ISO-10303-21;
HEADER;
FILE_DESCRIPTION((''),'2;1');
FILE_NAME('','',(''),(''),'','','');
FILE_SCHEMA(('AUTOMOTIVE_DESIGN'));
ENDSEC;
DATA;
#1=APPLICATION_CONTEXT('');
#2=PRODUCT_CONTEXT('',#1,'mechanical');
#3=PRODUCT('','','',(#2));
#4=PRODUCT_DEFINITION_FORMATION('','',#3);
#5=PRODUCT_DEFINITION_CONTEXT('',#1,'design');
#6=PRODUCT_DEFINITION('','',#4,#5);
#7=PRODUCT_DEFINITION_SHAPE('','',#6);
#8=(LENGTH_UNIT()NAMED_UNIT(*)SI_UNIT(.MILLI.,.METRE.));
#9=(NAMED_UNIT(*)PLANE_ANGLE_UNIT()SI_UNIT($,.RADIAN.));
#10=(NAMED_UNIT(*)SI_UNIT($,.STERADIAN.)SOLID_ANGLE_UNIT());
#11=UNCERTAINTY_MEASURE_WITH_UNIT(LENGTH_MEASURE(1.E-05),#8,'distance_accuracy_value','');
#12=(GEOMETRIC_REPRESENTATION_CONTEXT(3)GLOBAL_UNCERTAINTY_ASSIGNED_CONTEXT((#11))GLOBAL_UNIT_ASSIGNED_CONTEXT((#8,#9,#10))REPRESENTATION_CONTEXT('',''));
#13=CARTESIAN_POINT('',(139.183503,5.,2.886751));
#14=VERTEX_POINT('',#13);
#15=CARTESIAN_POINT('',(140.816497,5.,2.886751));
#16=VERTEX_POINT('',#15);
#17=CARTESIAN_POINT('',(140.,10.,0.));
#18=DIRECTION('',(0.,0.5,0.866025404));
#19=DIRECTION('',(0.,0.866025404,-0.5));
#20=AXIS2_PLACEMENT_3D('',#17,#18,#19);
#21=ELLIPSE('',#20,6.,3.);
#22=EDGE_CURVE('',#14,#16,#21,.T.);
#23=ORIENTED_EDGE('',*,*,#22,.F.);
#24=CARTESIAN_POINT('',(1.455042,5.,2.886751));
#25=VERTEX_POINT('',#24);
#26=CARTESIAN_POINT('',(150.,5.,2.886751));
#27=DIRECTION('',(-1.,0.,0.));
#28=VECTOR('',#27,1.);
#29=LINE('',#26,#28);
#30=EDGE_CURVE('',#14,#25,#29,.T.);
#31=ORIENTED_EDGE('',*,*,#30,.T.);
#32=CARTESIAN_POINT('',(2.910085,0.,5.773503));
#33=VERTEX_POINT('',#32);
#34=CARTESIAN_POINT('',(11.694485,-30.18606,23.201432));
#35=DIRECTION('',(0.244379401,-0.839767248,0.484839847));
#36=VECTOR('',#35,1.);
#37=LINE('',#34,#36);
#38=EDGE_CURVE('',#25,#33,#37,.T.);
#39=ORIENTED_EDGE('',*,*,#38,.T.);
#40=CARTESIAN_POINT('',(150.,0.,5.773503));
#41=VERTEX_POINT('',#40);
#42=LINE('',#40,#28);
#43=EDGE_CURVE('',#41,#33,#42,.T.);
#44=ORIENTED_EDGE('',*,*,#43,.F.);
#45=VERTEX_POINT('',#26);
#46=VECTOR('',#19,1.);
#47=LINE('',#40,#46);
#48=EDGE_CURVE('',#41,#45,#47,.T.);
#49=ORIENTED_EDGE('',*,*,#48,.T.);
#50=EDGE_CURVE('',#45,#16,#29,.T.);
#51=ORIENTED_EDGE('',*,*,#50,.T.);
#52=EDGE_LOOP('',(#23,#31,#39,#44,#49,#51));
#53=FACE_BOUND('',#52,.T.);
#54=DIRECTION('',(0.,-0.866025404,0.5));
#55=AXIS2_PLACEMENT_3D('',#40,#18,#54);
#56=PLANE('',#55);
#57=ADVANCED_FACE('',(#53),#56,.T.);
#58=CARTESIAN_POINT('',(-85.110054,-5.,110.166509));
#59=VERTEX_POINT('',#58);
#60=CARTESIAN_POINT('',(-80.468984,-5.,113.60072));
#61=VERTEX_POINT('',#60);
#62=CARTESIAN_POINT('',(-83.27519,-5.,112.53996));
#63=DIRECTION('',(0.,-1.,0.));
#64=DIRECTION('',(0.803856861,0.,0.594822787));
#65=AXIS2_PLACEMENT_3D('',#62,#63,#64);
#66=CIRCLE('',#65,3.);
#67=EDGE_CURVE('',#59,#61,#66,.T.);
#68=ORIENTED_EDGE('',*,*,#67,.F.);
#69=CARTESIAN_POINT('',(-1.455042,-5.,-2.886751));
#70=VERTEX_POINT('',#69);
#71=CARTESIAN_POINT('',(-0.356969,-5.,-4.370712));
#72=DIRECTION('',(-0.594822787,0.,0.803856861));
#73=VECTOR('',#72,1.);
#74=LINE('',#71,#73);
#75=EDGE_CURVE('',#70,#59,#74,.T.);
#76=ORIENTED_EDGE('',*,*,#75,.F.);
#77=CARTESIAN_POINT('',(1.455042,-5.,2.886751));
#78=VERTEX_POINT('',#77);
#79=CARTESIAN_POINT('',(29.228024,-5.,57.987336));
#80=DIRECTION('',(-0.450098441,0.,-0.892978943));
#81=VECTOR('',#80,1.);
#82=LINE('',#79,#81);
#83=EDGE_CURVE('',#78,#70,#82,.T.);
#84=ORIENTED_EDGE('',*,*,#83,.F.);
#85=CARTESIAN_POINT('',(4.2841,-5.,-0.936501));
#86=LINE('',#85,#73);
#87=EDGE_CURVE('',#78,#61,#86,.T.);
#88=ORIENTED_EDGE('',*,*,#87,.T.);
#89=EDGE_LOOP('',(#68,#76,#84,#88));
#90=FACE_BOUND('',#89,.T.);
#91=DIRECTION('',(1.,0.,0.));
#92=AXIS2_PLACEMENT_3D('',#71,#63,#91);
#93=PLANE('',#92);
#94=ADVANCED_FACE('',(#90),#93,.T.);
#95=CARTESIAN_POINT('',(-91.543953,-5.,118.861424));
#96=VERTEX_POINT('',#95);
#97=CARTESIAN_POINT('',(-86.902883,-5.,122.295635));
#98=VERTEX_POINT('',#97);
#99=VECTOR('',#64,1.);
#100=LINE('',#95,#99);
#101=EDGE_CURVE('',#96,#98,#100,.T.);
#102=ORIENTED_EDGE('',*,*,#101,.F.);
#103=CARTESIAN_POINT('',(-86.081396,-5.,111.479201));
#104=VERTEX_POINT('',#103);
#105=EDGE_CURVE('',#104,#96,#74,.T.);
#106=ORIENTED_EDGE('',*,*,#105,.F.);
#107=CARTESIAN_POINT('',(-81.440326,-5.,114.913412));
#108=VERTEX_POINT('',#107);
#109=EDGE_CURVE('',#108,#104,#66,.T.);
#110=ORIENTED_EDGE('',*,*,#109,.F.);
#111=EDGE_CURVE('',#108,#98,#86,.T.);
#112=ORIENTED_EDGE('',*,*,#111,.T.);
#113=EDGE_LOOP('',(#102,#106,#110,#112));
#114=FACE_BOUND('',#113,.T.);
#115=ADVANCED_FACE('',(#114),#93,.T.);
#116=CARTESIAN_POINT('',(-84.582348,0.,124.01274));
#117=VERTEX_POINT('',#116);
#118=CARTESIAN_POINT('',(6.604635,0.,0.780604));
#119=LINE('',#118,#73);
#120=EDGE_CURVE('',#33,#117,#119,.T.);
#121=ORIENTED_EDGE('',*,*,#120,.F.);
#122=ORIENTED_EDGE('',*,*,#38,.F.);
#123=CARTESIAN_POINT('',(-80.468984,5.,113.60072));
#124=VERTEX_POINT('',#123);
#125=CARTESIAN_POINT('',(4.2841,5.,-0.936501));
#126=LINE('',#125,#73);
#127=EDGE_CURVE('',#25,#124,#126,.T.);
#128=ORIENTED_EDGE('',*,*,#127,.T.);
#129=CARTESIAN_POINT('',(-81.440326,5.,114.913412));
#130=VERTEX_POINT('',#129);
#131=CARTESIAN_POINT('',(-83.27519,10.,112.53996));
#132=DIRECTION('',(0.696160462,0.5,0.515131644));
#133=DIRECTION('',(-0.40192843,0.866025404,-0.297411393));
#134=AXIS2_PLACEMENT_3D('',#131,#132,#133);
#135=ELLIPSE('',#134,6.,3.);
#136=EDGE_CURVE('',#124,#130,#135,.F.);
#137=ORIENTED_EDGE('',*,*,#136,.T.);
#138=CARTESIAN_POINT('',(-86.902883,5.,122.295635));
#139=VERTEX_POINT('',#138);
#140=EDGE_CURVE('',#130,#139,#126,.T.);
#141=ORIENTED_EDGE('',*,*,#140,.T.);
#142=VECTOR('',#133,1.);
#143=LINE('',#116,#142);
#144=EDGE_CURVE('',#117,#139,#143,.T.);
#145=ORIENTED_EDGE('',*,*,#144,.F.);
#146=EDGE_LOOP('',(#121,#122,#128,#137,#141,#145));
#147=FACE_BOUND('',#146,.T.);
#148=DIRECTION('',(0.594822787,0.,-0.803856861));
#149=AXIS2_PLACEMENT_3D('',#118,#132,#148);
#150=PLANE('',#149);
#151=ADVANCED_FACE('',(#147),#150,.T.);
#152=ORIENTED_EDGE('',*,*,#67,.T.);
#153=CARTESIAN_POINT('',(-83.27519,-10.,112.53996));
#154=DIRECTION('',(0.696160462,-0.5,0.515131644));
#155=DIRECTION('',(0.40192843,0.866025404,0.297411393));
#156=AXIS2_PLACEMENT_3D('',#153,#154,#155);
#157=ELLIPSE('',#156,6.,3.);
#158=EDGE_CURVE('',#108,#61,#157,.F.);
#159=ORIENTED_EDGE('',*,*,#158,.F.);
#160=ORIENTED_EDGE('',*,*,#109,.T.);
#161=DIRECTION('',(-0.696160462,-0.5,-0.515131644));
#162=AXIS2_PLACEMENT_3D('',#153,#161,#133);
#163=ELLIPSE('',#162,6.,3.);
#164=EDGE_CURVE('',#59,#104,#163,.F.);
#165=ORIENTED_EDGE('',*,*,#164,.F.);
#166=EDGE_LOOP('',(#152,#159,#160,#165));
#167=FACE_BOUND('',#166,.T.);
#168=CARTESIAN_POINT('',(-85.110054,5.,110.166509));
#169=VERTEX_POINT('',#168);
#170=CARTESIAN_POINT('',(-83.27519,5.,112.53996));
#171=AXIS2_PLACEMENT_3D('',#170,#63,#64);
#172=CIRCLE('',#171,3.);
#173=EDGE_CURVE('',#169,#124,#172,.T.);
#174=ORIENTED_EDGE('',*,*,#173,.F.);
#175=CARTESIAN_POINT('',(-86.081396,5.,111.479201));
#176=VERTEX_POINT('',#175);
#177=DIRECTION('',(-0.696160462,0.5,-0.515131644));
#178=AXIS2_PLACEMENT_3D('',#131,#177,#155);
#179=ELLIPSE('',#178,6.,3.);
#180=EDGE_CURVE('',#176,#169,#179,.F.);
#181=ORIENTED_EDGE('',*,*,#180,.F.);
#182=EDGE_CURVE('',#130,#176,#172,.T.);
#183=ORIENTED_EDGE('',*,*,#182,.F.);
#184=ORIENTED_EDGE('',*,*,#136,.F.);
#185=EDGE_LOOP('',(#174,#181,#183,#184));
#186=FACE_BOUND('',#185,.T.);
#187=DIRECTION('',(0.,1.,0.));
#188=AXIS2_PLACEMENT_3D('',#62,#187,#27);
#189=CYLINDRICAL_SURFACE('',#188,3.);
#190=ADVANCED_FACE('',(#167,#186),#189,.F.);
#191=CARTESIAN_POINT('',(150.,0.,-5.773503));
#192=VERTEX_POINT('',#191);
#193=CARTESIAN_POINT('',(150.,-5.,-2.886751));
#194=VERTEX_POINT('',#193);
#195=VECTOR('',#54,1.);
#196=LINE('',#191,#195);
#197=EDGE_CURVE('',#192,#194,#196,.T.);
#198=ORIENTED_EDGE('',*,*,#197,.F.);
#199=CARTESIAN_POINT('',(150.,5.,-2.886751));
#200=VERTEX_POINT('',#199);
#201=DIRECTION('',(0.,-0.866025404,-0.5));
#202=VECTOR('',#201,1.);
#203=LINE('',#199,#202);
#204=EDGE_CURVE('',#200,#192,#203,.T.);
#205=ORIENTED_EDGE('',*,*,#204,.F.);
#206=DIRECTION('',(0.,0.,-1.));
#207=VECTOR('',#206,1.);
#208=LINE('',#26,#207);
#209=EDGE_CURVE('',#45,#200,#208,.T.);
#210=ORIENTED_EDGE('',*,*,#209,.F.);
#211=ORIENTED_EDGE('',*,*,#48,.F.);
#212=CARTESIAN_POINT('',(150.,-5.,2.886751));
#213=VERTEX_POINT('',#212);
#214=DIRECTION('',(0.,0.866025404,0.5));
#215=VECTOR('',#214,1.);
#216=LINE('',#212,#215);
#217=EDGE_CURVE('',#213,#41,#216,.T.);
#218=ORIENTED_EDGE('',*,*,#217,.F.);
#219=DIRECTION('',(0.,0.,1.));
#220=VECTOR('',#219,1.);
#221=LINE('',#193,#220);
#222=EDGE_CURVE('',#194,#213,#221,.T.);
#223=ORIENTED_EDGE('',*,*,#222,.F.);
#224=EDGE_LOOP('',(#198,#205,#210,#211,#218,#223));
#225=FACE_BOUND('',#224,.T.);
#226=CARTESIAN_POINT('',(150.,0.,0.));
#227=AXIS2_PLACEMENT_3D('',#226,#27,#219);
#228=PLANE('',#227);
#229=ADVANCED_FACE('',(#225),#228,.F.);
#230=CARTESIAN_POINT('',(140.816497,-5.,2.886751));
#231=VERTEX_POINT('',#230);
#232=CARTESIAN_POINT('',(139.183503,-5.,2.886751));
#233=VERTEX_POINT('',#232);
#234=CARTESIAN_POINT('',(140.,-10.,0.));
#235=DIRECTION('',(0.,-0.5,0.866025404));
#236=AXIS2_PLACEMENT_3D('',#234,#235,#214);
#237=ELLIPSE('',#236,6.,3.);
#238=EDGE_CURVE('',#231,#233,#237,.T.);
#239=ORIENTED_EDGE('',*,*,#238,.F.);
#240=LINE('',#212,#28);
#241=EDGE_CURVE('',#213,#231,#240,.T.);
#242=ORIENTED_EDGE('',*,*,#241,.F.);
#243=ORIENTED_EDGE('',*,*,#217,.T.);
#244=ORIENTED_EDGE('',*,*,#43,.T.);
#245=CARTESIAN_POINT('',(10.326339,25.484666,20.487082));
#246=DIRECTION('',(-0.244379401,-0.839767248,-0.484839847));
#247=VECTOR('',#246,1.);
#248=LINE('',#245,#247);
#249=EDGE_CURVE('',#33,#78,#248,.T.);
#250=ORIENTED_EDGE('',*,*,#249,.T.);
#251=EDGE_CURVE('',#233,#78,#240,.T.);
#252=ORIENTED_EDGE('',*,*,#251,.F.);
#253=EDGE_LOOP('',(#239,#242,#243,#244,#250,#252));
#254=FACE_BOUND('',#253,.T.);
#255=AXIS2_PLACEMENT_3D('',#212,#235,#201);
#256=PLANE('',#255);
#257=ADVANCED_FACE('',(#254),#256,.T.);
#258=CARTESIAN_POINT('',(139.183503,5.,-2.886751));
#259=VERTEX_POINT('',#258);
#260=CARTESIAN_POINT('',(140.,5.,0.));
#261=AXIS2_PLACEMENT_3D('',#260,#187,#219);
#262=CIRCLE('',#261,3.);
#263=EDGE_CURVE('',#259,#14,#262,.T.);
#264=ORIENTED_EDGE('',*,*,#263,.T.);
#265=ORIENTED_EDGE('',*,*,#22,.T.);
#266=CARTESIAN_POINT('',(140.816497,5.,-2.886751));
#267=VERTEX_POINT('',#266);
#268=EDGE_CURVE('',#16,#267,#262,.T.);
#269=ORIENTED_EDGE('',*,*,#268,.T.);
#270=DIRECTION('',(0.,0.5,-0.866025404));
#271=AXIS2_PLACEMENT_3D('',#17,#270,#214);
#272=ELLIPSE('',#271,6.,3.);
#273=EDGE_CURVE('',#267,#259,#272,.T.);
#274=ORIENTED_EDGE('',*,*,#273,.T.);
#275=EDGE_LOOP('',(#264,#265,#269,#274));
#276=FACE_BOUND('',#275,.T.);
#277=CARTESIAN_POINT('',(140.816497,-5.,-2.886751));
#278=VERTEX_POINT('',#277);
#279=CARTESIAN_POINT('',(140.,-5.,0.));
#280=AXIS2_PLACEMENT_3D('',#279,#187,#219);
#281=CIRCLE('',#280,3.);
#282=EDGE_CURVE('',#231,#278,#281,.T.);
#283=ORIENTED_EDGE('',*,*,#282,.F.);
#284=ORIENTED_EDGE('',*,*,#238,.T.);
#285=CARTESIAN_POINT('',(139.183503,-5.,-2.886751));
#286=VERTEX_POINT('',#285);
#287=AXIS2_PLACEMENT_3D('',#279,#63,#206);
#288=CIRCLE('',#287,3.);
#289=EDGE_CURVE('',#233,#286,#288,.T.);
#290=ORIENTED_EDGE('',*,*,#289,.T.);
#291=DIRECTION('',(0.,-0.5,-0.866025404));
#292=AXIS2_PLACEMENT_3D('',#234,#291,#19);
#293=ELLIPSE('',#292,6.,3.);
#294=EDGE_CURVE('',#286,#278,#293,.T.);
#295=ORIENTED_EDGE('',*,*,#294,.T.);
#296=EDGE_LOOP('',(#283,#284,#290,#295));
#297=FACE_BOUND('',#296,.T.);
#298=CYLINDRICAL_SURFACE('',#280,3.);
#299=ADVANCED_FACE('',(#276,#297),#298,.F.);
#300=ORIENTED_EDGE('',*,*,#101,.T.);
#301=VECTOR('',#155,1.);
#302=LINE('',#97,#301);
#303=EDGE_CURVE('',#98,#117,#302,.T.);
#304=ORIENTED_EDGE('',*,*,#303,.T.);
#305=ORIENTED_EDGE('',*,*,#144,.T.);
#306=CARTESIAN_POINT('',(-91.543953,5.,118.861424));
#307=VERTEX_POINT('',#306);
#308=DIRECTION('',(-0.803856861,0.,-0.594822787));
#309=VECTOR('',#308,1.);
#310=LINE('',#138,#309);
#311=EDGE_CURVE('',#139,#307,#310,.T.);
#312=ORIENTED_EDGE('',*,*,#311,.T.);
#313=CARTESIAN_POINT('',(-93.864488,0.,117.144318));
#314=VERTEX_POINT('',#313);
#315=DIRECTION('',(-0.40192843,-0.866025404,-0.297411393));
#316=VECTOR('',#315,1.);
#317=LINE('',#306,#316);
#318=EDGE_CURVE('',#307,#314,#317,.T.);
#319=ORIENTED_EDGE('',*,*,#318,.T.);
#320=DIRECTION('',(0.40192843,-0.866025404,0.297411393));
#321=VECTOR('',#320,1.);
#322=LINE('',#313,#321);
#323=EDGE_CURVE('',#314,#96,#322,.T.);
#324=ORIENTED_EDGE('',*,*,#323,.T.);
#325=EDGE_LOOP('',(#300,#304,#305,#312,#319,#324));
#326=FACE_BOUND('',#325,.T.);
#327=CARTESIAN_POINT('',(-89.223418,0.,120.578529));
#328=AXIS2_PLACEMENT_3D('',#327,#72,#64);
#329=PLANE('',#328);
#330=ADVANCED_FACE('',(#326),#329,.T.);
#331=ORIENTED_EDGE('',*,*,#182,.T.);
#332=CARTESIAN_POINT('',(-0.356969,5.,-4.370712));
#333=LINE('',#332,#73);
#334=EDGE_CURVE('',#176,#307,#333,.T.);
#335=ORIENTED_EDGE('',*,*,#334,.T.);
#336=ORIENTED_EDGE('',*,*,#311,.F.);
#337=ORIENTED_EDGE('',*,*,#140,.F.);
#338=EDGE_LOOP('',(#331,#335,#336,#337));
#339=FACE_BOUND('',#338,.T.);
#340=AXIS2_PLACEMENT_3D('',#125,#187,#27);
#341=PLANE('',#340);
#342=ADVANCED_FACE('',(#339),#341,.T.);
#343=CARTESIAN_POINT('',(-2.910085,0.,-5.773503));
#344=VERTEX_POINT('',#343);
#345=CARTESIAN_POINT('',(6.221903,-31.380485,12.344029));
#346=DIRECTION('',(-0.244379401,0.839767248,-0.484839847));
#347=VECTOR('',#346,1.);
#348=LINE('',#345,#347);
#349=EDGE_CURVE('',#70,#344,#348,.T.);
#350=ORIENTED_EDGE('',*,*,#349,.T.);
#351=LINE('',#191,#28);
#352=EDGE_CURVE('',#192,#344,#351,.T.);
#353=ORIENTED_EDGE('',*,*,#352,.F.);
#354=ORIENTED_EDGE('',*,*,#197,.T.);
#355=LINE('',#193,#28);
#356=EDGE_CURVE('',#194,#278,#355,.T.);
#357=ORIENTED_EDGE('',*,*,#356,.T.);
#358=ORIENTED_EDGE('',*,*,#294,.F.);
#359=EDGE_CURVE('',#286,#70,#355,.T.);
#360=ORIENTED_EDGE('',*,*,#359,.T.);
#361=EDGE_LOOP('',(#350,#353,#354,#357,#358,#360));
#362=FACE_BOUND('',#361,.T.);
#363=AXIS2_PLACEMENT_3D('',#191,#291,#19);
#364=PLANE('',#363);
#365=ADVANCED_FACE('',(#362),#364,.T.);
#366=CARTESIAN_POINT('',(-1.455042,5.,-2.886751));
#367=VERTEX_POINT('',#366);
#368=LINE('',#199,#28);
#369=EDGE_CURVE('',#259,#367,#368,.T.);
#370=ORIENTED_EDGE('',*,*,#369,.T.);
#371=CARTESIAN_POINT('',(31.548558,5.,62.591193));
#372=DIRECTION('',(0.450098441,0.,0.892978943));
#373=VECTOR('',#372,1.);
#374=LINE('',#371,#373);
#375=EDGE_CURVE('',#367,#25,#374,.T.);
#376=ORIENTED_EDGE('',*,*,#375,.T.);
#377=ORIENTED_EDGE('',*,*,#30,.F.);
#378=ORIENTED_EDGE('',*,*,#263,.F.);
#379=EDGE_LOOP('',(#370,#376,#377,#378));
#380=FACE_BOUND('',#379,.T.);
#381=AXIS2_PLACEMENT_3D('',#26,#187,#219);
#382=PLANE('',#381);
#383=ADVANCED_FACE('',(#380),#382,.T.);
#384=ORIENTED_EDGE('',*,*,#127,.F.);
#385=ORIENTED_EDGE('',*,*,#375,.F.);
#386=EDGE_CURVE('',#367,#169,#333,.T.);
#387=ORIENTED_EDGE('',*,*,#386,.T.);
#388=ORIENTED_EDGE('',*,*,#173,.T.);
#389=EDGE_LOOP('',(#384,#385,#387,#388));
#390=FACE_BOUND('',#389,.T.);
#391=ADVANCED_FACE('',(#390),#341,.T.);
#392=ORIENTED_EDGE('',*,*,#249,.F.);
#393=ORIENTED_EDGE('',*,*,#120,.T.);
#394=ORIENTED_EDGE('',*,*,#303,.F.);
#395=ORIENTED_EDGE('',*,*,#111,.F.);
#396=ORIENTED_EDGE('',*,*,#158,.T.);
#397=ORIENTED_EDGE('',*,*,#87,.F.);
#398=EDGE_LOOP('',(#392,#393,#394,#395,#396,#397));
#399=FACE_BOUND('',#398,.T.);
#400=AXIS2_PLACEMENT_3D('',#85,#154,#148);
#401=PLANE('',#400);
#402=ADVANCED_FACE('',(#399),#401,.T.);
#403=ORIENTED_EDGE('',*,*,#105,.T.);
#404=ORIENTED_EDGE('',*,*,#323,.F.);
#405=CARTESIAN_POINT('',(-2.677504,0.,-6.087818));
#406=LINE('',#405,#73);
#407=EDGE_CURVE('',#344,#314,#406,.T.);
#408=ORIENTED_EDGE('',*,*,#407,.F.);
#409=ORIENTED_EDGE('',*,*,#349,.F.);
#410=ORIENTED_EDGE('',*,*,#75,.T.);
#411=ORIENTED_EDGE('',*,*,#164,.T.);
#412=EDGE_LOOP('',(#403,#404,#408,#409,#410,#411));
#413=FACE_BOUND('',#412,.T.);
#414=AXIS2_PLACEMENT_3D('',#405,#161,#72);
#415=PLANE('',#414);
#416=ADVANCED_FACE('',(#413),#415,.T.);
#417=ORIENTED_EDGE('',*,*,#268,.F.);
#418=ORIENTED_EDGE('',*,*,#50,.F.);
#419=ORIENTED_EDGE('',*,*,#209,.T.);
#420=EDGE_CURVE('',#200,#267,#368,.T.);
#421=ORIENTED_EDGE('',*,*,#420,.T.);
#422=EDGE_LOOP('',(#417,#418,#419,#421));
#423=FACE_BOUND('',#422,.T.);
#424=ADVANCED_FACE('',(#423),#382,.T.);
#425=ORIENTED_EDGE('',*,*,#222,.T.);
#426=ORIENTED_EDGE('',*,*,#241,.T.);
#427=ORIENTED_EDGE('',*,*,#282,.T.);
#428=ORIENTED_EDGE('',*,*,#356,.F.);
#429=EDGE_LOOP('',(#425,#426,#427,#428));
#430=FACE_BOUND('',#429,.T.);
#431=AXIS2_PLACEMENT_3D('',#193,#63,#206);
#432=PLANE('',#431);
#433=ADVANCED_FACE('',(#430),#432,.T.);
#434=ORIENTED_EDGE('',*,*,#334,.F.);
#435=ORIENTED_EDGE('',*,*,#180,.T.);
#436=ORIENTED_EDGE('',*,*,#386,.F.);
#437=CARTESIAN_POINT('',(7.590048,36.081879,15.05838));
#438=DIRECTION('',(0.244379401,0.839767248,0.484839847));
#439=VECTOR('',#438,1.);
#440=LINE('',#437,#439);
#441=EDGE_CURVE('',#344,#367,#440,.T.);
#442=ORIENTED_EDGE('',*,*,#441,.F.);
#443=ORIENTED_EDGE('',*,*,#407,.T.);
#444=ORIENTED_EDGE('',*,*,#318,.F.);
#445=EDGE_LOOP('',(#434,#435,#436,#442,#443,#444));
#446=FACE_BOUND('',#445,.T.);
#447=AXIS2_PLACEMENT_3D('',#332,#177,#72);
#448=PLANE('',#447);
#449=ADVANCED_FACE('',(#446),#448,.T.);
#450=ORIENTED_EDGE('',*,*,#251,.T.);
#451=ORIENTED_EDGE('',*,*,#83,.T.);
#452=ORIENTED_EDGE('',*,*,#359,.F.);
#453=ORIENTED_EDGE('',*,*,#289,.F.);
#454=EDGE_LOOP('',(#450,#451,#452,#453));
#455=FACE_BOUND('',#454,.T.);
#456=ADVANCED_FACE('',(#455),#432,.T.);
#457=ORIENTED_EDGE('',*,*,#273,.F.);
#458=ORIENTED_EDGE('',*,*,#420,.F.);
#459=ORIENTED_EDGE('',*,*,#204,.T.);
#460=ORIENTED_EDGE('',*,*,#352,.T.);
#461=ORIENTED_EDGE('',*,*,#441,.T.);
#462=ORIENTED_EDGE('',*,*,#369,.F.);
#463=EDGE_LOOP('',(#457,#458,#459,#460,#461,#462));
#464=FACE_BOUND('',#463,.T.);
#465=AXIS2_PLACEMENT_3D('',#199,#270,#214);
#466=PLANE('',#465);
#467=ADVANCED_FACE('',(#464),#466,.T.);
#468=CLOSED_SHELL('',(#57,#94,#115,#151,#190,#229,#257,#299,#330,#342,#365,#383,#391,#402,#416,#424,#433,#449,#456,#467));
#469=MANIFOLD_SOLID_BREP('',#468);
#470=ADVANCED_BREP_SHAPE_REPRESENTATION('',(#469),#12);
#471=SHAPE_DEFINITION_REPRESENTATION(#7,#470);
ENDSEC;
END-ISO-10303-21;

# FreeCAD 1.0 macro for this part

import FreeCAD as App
import Part
import Sketcher
from FreeCAD import Vector
Q = App.Units.Quantity

doc = App.newDocument("Part")
body = doc.addObject("PartDesign::Body", "Body")

# Sketch on an angled plane
sketch1 = body.newObject("Sketcher::SketchObject", "Sketch")
sketch1.Placement = App.Placement(Vector(-89.223418, 0, 120.578529), App.Rotation(Vector(0.803856861, 0, 0.594822787), Vector(0, 1.000000001, 0), Vector(-0.594822787, 0, 0.803856861), "ZXY"))
sketch1.addGeometry([
    Part.LineSegment(Vector(3, -5, 0), Vector(6, 0, 0)),  # 0
    Part.LineSegment(Vector(6, 0, 0), Vector(3, 5, 0)),  # 1
    Part.LineSegment(Vector(3, 5, 0), Vector(-3, 5, 0)),  # 2
    Part.LineSegment(Vector(-3, 5, 0), Vector(-6, 0, 0)),  # 3
    Part.LineSegment(Vector(-6, 0, 0), Vector(-3, -5, 0)),  # 4
    Part.LineSegment(Vector(-3, -5, 0), Vector(3, -5, 0)),  # 5
], False)
sketch1.addConstraint([
    Sketcher.Constraint("Coincident", 0, 2, 1, 1),
    Sketcher.Constraint("Coincident", 1, 2, 2, 1),
    Sketcher.Constraint("Coincident", 2, 2, 3, 1),
    Sketcher.Constraint("Coincident", 3, 2, 4, 1),
    Sketcher.Constraint("Coincident", 4, 2, 5, 1),
    Sketcher.Constraint("Coincident", 5, 2, 0, 1),
    Sketcher.Constraint("Horizontal", 2),
    Sketcher.Constraint("Horizontal", 5),
    Sketcher.Constraint("Symmetric", 0, 2, 3, 2, -1, 1),
    Sketcher.Constraint("Symmetric", 1, 2, 4, 2, -1, 1),
    Sketcher.Constraint("PointOnObject", 0, 2, -1),
    Sketcher.Constraint("Parallel", 0, 3),
    Sketcher.Constraint("Vertical", 2, 2, 4, 2),
    Sketcher.Constraint("Angle", 0, Q("60 deg")),
    Sketcher.Constraint("DistanceY", -1, 1, 1, 2, 5.0),
    Sketcher.Constraint("DistanceX", 2, 2, 2, 1, 5.773503),
])

# Sketch on XZ plane
sketch2 = body.newObject("Sketcher::SketchObject", "Sketch001")
sketch2.AttachmentSupport = (doc.getObject("XZ_Plane"), [""])
sketch2.MapMode = "FlatFace"
sketch2.addGeometry([
    Part.LineSegment(Vector(150, 0, 0), Vector(0, 0, 0)),
    Part.LineSegment(Vector(0, 0, 0), Vector(-89, 121, 0)),
], False)
sketch2.addConstraint([
    Sketcher.Constraint("Coincident", 0, 2, 1, 1),
    Sketcher.Constraint("Horizontal", 0),
    Sketcher.Constraint("Coincident", 0, 2, -1, 1),
    Sketcher.Constraint("DistanceX", 0, 2, 0, 1, 150.0),
    Sketcher.Constraint("Distance", 1, 150.0),
    Sketcher.Constraint("Angle", 1, Q("126.5 deg")),
])
doc.recompute()

additivepipe = body.newObject("PartDesign::AdditivePipe", "AdditivePipe")
additivepipe.Profile = sketch1
additivepipe.Spine = (sketch2, ["Edge1", "Edge2"])
additivepipe.Transition = "Right corner"

# Sketch on XZ plane
sketch3 = body.newObject("Sketcher::SketchObject", "Sketch002")
sketch3.AttachmentSupport = (doc.getObject("XZ_Plane"), [""])
sketch3.MapMode = "FlatFace"
sketch3.AttachmentOffset = App.Placement(Vector(0, 0, -5), App.Rotation())
sketch3.addGeometry(Part.Circle(Vector(140, 0, 0), Vector(0, 0, 1), 3), False)
sketch3.addConstraint([
    Sketcher.Constraint("PointOnObject", 0, 3, -1),
    Sketcher.Constraint("Diameter", 0, 6.0),
    Sketcher.Constraint("DistanceX", -1, 1, 0, 3, 140.0),
])
pocket1 = body.newObject("PartDesign::Pocket", "Pocket")
pocket1.Profile = sketch3
pocket1.Type = "ThroughAll"
pocket1.Reversed = True
doc.recompute()

datumplane = body.newObject("PartDesign::Plane", "DatumPlane")
datumplane.Placement = App.Placement(Vector(0, 0, 0), App.Rotation(Vector(0.450098441, 0, 0.892978943), Vector(0, -1, 0), Vector(0.892978943, 0, -0.450098441), "ZXY"))
mirrored = body.newObject("PartDesign::Mirrored", "Mirrored")
mirrored.Originals = [pocket1]
mirrored.MirrorPlane = (datumplane, [""])
body.Tip = mirrored

doc.recompute()
